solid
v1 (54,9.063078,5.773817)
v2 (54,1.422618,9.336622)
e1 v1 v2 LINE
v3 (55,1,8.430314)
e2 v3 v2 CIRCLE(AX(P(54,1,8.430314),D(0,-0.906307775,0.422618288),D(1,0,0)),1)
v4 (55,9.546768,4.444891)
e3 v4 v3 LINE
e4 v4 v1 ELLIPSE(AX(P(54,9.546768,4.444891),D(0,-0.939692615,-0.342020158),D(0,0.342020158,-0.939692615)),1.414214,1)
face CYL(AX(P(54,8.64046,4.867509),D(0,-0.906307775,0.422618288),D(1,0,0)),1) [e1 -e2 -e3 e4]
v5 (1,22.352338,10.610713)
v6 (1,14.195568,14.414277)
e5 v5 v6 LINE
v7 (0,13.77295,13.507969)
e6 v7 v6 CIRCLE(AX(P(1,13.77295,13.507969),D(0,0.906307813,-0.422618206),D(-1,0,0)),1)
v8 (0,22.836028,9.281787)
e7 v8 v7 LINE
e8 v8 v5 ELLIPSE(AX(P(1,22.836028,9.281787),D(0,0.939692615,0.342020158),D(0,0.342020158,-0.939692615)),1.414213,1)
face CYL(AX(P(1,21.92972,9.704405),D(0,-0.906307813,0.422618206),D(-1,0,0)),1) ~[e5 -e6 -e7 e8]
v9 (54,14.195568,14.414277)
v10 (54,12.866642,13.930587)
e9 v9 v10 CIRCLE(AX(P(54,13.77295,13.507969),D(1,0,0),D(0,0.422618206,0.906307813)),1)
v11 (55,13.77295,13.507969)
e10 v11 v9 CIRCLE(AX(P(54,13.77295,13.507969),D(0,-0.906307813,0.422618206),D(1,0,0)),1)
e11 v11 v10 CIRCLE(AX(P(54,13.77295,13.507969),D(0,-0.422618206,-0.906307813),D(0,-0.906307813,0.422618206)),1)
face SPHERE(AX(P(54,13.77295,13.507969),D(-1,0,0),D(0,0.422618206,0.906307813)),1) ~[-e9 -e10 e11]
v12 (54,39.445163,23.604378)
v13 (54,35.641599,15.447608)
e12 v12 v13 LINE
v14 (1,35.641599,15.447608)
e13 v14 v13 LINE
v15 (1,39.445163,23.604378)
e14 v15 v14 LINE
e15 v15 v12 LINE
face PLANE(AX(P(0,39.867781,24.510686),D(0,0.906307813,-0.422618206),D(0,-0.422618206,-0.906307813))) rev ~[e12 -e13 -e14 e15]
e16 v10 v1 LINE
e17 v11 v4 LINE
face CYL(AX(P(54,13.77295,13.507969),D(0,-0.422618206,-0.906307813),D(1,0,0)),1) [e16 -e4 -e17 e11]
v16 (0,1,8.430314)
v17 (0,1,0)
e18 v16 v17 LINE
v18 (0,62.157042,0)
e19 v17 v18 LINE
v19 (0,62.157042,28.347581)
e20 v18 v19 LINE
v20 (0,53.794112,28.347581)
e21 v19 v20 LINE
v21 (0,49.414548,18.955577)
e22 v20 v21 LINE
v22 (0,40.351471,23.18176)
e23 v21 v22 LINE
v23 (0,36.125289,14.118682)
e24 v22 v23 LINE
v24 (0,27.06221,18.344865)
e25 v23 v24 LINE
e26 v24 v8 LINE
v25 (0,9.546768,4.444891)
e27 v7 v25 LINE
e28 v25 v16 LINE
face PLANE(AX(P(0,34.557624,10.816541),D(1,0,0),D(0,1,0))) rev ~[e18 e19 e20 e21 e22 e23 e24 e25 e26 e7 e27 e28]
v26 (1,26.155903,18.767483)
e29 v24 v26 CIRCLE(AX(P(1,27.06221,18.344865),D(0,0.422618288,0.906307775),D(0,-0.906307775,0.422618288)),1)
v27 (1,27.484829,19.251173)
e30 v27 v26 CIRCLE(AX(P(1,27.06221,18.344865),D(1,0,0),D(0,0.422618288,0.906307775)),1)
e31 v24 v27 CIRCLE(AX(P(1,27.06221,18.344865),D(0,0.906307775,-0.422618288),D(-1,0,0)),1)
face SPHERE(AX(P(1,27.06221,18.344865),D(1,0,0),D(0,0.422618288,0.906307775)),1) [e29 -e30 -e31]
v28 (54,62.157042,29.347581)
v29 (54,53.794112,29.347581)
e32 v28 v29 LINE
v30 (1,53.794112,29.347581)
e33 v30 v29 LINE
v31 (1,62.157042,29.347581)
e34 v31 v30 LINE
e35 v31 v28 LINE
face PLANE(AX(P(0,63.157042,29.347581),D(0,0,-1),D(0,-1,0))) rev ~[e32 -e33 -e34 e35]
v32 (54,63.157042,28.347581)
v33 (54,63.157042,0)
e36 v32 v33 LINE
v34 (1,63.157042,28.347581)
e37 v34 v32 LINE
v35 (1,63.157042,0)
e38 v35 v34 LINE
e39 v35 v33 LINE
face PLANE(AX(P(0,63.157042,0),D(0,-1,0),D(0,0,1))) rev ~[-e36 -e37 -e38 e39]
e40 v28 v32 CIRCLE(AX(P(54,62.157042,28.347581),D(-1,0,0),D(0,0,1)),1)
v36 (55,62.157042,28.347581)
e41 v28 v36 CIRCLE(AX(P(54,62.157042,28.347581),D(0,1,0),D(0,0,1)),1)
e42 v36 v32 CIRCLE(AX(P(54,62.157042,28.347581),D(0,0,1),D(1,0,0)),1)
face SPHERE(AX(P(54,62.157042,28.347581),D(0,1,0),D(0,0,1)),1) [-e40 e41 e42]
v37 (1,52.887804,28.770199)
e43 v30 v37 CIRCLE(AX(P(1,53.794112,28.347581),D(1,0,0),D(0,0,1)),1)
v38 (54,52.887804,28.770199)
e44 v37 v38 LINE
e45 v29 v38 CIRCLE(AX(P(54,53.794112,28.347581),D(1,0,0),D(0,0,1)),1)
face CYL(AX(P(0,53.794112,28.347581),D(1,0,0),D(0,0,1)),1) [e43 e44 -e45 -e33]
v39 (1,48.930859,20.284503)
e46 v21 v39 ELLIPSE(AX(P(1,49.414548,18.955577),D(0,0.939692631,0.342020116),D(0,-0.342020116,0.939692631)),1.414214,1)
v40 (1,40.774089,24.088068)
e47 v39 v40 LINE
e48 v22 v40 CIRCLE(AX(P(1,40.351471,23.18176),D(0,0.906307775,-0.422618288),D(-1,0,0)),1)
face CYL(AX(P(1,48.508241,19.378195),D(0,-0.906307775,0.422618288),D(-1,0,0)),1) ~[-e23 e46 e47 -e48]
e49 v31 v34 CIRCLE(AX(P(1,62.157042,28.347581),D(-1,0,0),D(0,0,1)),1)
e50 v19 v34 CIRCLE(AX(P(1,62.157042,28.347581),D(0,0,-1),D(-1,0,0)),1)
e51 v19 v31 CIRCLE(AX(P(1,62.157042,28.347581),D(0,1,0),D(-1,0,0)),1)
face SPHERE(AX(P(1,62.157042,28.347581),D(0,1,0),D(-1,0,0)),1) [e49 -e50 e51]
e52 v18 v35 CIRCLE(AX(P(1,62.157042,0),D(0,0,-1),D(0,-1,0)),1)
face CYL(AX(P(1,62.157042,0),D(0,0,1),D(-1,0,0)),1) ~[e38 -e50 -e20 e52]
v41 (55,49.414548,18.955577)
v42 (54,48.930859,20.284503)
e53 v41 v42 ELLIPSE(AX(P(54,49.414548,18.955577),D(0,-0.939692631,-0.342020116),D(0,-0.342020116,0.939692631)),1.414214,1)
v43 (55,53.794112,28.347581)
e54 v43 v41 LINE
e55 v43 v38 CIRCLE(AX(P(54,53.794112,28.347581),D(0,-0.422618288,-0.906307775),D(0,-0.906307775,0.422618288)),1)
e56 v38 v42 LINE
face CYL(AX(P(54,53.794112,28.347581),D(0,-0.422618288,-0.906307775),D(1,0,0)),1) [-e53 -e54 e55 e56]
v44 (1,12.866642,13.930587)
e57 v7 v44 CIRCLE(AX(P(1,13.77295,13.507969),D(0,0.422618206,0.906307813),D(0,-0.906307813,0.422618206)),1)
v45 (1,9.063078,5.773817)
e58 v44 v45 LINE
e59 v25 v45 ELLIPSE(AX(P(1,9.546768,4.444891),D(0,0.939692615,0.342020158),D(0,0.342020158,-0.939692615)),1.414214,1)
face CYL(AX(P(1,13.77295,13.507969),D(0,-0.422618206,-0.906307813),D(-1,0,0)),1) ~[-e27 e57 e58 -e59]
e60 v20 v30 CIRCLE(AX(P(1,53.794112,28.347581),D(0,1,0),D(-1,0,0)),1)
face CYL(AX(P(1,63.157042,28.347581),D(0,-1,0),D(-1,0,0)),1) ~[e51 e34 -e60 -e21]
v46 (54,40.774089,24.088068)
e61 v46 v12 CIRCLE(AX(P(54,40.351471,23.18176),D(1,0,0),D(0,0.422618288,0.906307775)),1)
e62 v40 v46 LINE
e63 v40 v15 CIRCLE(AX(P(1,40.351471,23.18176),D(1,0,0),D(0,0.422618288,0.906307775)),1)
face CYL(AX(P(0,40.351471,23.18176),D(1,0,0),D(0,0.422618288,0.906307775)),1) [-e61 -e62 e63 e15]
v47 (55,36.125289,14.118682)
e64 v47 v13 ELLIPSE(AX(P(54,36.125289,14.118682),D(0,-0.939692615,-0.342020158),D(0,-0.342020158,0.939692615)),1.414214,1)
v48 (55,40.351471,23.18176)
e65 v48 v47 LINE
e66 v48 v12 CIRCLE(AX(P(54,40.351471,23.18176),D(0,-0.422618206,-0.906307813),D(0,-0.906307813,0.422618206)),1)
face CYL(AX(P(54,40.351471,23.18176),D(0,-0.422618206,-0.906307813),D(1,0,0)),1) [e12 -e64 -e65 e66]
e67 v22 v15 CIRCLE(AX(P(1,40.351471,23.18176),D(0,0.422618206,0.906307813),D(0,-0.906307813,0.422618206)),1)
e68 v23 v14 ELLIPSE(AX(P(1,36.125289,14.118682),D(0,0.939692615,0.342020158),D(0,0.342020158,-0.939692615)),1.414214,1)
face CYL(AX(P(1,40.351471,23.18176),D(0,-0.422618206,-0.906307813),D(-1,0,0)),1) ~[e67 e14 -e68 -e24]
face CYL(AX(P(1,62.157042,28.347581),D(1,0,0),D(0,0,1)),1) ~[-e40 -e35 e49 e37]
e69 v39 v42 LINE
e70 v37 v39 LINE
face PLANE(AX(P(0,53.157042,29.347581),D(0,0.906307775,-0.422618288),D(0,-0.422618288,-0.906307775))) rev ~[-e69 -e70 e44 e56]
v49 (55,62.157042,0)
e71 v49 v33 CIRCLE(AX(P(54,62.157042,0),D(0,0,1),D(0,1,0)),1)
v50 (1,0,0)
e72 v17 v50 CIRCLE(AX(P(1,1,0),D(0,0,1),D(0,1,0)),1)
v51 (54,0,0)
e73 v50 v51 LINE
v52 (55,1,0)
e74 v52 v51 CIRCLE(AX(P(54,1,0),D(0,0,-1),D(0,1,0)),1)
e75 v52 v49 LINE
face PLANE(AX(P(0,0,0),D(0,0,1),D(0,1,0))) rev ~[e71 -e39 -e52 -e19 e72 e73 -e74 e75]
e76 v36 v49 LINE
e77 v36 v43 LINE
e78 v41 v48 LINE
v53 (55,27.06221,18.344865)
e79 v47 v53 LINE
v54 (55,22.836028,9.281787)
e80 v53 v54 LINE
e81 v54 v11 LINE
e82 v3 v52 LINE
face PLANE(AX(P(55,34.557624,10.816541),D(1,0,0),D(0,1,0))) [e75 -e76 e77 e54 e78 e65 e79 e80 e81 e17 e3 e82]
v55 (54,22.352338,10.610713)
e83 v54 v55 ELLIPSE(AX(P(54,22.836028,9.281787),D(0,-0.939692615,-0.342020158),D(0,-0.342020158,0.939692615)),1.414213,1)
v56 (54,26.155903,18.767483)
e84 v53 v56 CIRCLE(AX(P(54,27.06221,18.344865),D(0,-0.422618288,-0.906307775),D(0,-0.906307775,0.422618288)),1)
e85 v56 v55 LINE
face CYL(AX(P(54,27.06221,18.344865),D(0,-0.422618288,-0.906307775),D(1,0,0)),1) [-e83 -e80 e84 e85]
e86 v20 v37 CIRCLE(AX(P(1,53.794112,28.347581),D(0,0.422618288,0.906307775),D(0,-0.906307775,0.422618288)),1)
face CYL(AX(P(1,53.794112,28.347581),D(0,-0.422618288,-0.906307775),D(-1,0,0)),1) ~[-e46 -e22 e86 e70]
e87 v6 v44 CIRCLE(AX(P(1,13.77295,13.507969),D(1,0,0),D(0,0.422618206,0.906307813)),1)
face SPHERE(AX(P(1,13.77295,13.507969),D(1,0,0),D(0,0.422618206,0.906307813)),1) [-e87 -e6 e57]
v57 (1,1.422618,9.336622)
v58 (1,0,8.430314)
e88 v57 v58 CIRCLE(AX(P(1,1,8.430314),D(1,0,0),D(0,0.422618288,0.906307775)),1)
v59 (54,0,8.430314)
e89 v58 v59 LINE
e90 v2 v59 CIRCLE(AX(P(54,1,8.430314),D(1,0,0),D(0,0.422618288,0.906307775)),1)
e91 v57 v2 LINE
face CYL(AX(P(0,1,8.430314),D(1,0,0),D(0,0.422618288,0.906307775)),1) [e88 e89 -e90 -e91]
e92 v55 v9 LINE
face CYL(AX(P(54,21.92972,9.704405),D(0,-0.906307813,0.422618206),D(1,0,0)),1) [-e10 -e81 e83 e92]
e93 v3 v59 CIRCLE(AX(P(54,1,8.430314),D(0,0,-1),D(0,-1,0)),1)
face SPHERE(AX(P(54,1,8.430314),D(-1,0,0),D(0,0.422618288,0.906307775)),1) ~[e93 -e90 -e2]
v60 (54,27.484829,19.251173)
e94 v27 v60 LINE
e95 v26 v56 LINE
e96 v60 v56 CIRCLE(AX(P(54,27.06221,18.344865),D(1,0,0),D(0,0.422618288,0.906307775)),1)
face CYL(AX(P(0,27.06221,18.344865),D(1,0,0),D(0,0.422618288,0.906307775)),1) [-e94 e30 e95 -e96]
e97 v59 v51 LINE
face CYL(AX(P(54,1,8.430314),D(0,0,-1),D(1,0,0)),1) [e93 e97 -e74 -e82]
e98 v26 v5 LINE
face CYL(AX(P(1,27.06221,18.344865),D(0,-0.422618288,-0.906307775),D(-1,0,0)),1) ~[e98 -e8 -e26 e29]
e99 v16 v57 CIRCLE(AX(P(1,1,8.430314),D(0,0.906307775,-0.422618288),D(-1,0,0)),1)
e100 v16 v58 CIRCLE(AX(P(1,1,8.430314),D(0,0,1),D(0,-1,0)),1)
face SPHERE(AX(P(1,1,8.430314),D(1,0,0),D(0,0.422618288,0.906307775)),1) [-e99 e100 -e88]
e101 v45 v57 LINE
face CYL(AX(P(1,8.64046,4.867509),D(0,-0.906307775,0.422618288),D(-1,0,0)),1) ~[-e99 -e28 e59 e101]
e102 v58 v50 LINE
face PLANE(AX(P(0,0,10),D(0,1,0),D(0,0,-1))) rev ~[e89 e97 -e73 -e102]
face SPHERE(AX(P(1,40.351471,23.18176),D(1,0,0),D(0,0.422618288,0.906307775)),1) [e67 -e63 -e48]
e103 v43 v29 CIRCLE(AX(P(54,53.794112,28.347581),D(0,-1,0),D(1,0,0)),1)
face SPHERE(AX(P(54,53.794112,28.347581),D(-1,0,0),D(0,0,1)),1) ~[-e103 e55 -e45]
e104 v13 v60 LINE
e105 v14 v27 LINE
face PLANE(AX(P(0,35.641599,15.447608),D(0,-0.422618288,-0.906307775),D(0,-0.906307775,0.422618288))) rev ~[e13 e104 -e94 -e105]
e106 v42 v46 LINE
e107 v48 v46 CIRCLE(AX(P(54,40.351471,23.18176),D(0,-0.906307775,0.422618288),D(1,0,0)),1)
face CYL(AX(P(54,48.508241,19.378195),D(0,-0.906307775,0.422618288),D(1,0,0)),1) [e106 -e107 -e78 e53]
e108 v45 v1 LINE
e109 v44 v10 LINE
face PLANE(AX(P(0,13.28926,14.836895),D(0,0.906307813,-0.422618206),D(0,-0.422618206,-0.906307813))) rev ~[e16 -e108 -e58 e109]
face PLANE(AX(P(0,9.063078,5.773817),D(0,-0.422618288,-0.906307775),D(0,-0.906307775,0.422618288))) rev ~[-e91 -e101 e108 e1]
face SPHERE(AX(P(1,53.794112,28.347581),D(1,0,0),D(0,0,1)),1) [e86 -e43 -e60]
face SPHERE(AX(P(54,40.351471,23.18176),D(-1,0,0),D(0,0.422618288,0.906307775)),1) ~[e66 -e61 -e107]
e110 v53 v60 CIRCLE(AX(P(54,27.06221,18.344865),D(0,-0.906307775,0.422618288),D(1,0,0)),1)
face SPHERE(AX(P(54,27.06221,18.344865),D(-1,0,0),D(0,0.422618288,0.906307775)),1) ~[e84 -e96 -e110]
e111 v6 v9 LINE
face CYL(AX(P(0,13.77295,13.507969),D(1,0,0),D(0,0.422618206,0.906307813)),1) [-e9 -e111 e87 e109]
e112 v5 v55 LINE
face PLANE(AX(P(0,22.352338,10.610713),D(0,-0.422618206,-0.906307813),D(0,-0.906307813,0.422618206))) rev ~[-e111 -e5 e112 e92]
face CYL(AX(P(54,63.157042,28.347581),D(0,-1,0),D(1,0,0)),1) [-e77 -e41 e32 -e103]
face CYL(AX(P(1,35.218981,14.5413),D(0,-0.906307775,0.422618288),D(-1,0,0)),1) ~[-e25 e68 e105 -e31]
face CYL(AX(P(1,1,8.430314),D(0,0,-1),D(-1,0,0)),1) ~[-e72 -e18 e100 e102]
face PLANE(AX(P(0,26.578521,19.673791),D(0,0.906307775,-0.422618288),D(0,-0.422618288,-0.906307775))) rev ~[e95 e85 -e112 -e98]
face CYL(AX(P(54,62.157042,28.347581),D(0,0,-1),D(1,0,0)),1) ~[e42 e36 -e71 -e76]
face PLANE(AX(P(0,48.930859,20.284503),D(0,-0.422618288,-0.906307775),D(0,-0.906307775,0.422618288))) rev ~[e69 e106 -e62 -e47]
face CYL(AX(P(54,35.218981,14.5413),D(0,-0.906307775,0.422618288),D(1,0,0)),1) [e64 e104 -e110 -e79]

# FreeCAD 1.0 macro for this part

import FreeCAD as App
import Part
import Sketcher

V = App.Vector
Q = App.Units.Quantity


def edges_at(feature, points):
    """Names of the edges that pass closest to the given points."""
    edges = feature.Shape.Edges
    near = lambda p: min(range(len(edges)), key=lambda i: edges[i].distToShape(Part.Vertex(*p))[0])
    return sorted({f"Edge{near(p) + 1}" for p in points})


def add_polygon(sketch, points):
    """Adds a closed chain of lines whose ends are joined by coincident constraints."""
    first, n = sketch.GeometryCount, len(points)
    for a, b in zip(points, points[1:] + points[:1]):
        sketch.addGeometry(Part.LineSegment(App.Vector(*a, 0), App.Vector(*b, 0)), False)
    for i in range(n):
        sketch.addConstraint(Sketcher.Constraint("Coincident", first + i, 2, first + (i + 1) % n, 1))

doc = App.newDocument("Part")
body = doc.addObject("PartDesign::Body", "Body")

# Sketch on YZ plane
sketch1 = body.newObject("Sketcher::SketchObject", "Sketch")
sketch1.AttachmentSupport = (doc.getObject("YZ_Plane"), [""])
sketch1.MapMode = "FlatFace"
add_polygon(sketch1, [(0, 0), (63, 0), (63, 29), (53, 29), (49, 20), (40, 25), (36, 15), (27, 20), (22, 11), (13, 15), (9, 6), (0, 10)])  # lines 0-11
sketch1.addConstraint([
    Sketcher.Constraint("Horizontal", 0),
    Sketcher.Constraint("Vertical", 1),
    Sketcher.Constraint("Horizontal", 2),
    Sketcher.Constraint("Vertical", 11),
    Sketcher.Constraint("Coincident", 11, 2, -1, 1),
    Sketcher.Constraint("Perpendicular", 3, 4),
    Sketcher.Constraint("Perpendicular", 4, 5),
    Sketcher.Constraint("Perpendicular", 5, 6),
    Sketcher.Constraint("Perpendicular", 6, 7),
    Sketcher.Constraint("Perpendicular", 7, 8),
    Sketcher.Constraint("Perpendicular", 8, 9),
    Sketcher.Constraint("Perpendicular", 9, 10),
    Sketcher.Constraint("Equal", 2, 11),
    Sketcher.Constraint("Equal", 3, 4),
    Sketcher.Constraint("Equal", 4, 5),
    Sketcher.Constraint("Equal", 5, 6),
    Sketcher.Constraint("Equal", 6, 7),
    Sketcher.Constraint("Equal", 7, 8),
    Sketcher.Constraint("Equal", 8, 9),
    Sketcher.Constraint("Equal", 9, 10),
    Sketcher.Constraint("DistanceX", 2, 2, 2, 1, 10.0),
    Sketcher.Constraint("Angle", 3, Q("-115.000002 deg")),
    Sketcher.Constraint("Distance", 3, 10.0),
])
pad1 = body.newObject("PartDesign::Pad", "Pad")
pad1.Profile = sketch1
pad1.Length = 55
doc.recompute()

fillet = body.newObject("PartDesign::Fillet", "Fillet")
fillet.Base = (pad1, edges_at(pad1, [
    (27.5, 13.289, 14.837),
    (27.5, 26.579, 19.674),
    (27.5, 39.868, 24.511),
    (27.5, 53.157, 29.348),
    (27.5, 0, 10),
]))
fillet.Radius = 1
doc.recompute()

fillet2 = body.newObject("PartDesign::Fillet", "Fillet001")
fillet2.Base = (fillet, edges_at(fillet, [
    (55, 18.274, 12.512),
    (55, 5.243, 7.555),
    (55, 31.563, 17.349),
    (55, 44.852, 22.186),
    (55, 50.909, 24.527),
]))
fillet2.Radius = 1
doc.recompute()

fillet3 = body.newObject("PartDesign::Fillet", "Fillet002")
fillet3.Base = (fillet2, edges_at(fillet2, [
    (0, 44.852, 22.186),
    (0, 50.909, 24.527),
    (0, 31.563, 17.349),
    (0, 18.274, 12.512),
    (0, 5.243, 7.555),
]))
fillet3.Radius = 1
doc.recompute()

fillet4 = body.newObject("PartDesign::Fillet", "Fillet003")
fillet4.Base = (fillet3, edges_at(fillet3, [(27.5, 63.157, 29.348), (0, 63.157, 14.174), (55, 63.157, 14.174)]))
fillet4.Radius = 1

doc.recompute()
